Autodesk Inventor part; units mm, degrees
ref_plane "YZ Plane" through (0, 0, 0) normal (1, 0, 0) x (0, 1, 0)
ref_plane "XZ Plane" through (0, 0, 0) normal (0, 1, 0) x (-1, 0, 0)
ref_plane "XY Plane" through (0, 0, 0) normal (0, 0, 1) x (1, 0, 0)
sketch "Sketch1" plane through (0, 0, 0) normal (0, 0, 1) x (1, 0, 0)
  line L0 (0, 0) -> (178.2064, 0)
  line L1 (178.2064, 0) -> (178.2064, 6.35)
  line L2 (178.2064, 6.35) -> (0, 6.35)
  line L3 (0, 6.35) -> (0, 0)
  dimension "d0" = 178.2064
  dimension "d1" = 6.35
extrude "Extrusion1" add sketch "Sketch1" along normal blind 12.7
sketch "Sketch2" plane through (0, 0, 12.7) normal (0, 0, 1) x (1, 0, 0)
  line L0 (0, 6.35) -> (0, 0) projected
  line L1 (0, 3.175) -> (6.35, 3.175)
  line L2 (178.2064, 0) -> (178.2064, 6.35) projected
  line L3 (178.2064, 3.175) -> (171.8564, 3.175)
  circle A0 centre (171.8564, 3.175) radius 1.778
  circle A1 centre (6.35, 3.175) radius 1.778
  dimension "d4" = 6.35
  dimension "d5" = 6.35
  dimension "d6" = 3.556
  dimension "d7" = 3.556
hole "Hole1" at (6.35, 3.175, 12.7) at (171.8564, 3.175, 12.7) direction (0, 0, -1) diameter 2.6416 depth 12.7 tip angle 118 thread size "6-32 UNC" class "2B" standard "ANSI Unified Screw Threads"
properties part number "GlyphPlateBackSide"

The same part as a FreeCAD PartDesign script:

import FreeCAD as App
import Part
import Sketcher
Q = App.Units.Quantity

doc = App.newDocument("Part")
body = doc.addObject("PartDesign::Body", "Body")

# Sketch on XY plane
sketch1 = body.newObject("Sketcher::SketchObject", "Sketch")
sketch1.AttachmentSupport = (doc.getObject("XY_Plane"), [""])
sketch1.MapMode = "FlatFace"
sketch1.addGeometry([
    Part.LineSegment(App.Vector(0, 6.35, 0), App.Vector(0, 0, 0)),
    Part.LineSegment(App.Vector(0, 0, 0), App.Vector(178.2064, 0, 0)),
    Part.LineSegment(App.Vector(178.2064, 0, 0), App.Vector(178.2064, 6.35, 0)),
    Part.LineSegment(App.Vector(178.2064, 6.35, 0), App.Vector(0, 6.35, 0)),
], False)
sketch1.addConstraint([
    Sketcher.Constraint("Coincident", 0, 2, 1, 1),
    Sketcher.Constraint("Coincident", 1, 2, 2, 1),
    Sketcher.Constraint("Coincident", 2, 2, 3, 1),
    Sketcher.Constraint("Coincident", 3, 2, 0, 1),
    Sketcher.Constraint("Vertical", 0),
    Sketcher.Constraint("Horizontal", 1),
    Sketcher.Constraint("Vertical", 2),
    Sketcher.Constraint("Horizontal", 3),
    Sketcher.Constraint("Coincident", 0, 2, -1, 1),
    Sketcher.Constraint("DistanceY", 0, 2, 0, 1, Q("0.25 in")),
    Sketcher.Constraint("DistanceX", 1, 1, 1, 2, Q("7.016 in")),
])
pad1 = body.newObject("PartDesign::Pad", "Pad")
pad1.Profile = sketch1
pad1.Length = Q("0.5 in")

# Sketch on XY plane
sketch2 = body.newObject("Sketcher::SketchObject", "Sketch001")
sketch2.AttachmentSupport = (doc.getObject("XY_Plane"), [""])
sketch2.MapMode = "FlatFace"
sketch2.AttachmentOffset = App.Placement(App.Vector(0, 0, 0.5 * 25.4), App.Rotation())
sketch2.addGeometry([
    Part.Circle(App.Vector(6.35, 3.175, 0), App.Vector(0, 0, 1), 1.3208),
    Part.Circle(App.Vector(171.8564, 3.175, 0), App.Vector(0, 0, 1), 1.3208),
], False)
sketch2.addConstraint([
    Sketcher.Constraint("Equal", 0, 1),
    Sketcher.Constraint("Horizontal", 0, 3, 1, 3),
    Sketcher.Constraint("Diameter", 0, Q("0.104 in")),
    Sketcher.Constraint("DistanceX", -1, 1, 0, 3, Q("0.25 in")),
    Sketcher.Constraint("DistanceY", -1, 1, 0, 3, Q("0.125 in")),
    Sketcher.Constraint("DistanceX", -1, 1, 1, 3, Q("6.766 in")),
])
doc.recompute()
hole = body.newObject("PartDesign::Hole", "Hole")
hole.Profile = sketch2
hole.ThreadType = "None"
hole.Diameter = Q("0.104 in")
hole.DepthType = "Dimension"
hole.Depth = Q("0.5 in")
hole.DrillPoint = "Angled"
hole.DrillPointAngle = 118

doc.recompute()
